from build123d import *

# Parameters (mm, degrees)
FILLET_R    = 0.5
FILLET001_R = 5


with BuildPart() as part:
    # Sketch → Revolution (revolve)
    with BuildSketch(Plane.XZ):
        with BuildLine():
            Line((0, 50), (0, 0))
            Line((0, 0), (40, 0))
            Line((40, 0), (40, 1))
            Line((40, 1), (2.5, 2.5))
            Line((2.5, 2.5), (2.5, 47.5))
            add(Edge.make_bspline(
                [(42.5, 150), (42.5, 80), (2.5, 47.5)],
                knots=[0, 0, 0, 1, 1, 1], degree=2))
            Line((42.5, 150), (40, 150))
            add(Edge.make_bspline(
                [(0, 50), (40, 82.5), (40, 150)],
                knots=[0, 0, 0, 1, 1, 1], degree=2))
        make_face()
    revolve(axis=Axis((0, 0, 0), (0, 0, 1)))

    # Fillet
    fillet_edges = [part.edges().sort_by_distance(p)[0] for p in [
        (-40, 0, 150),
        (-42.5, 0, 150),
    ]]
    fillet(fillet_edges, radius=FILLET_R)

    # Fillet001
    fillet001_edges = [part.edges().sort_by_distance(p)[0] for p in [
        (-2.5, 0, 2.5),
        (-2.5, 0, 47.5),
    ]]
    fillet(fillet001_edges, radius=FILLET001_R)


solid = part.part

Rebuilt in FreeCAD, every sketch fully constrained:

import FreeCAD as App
import Part
import Sketcher

V = App.Vector
Q = App.Units.Quantity


def edges_at(feature, points):
    """Names of the edges that pass closest to the given points."""
    edges = feature.Shape.Edges
    near = lambda p: min(range(len(edges)), key=lambda i: edges[i].distToShape(Part.Vertex(*p))[0])
    return sorted({f"Edge{near(p) + 1}" for p in points})

doc = App.newDocument("Part")
params = doc.addObject("Spreadsheet::Sheet", "Params")
for row, (alias, value) in enumerate([
    ("sketch1_height", "1 mm"),
    ("sketch1_height2", "45 mm"),
    ("revolution_angle", "360 deg"),
    ("fillet_radius", "0.5 mm"),
    ("fillet2_radius", "5 mm"),
], start=1):
    params.set(f"A{row}", alias)
    params.set(f"B{row}", "=" + value)
    params.setAlias(f"B{row}", alias)

body = doc.addObject("PartDesign::Body", "Body")

# Sketch on XZ plane
sketch1 = body.newObject("Sketcher::SketchObject", "Sketch")
sketch1.AttachmentSupport = (doc.getObject("XZ_Plane"), [""])
sketch1.MapMode = "FlatFace"
sketch1.addGeometry([
    Part.LineSegment(V(0, 50, 0), V(0, 0, 0)),  # 0
    Part.LineSegment(V(0, 0, 0), V(40, 0, 0)),  # 1
    Part.LineSegment(V(40, 0, 0), V(40, 1, 0)),  # 2
    Part.LineSegment(V(40, 1, 0), V(2.5, 2.5, 0)),  # 3
    Part.LineSegment(V(2.5, 2.5, 0), V(2.5, 47.5, 0)),  # 4
    Part.BSplineCurve([V(42.5, 150, 0), V(42.5, 80, 0), V(2.5, 47.5, 0)], [3, 3], [0, 1], False, 2, [1, 1, 1], False),  # 5
    Part.LineSegment(V(42.5, 150, 0), V(40, 150, 0)),  # 6
    Part.BSplineCurve([V(0, 50, 0), V(40, 82.5, 0), V(40, 150, 0)], [3, 3], [0, 1], False, 2, [1, 1, 1], False),  # 7
], False)
sketch1.addConstraint([
    Sketcher.Constraint("Block", 5),
    Sketcher.Constraint("Block", 7),
    Sketcher.Constraint("Coincident", 0, 2, 1, 1),
    Sketcher.Constraint("Coincident", 1, 2, 2, 1),
    Sketcher.Constraint("Coincident", 2, 2, 3, 1),
    Sketcher.Constraint("Coincident", 3, 2, 4, 1),
    Sketcher.Constraint("Coincident", 4, 2, 5, 2),
    Sketcher.Constraint("Coincident", 5, 1, 6, 1),
    Sketcher.Constraint("Coincident", 6, 2, 7, 2),
    Sketcher.Constraint("Coincident", 7, 1, 0, 1),
    Sketcher.Constraint("Vertical", 0),
    Sketcher.Constraint("Horizontal", 1),
    Sketcher.Constraint("Vertical", 2),
    Sketcher.Constraint("Vertical", 4),
    Sketcher.Constraint("PointOnObject", 1, 2, -1),
    Sketcher.Constraint("Vertical", 2, 2, 6, 2),
    Sketcher.Constraint("DistanceY", 2, 1, 2, 2, Q("1 mm")),
    Sketcher.Constraint("DistanceY", 4, 1, 4, 2, Q("45 mm")),
])
sketch1.setExpression("Constraints[16]", "Params.sketch1_height")
sketch1.setExpression("Constraints[17]", "Params.sketch1_height2")
revolution = body.newObject("PartDesign::Revolution", "Revolution")
revolution.Profile = sketch1
revolution.ReferenceAxis = (sketch1, ["V_Axis"])
revolution.setExpression("Angle", "Params.revolution_angle")
doc.recompute()

fillet = body.newObject("PartDesign::Fillet", "Fillet")
fillet.Base = (revolution, edges_at(revolution, [(-40, 0, 150), (-42.5, 0, 150)]))
fillet.setExpression("Radius", "Params.fillet_radius")
doc.recompute()

fillet2 = body.newObject("PartDesign::Fillet", "Fillet001")
fillet2.Base = (fillet, edges_at(fillet, [(-2.5, 0, 2.5), (-2.5, 0, 47.5)]))
fillet2.setExpression("Radius", "Params.fillet2_radius")

doc.recompute()
